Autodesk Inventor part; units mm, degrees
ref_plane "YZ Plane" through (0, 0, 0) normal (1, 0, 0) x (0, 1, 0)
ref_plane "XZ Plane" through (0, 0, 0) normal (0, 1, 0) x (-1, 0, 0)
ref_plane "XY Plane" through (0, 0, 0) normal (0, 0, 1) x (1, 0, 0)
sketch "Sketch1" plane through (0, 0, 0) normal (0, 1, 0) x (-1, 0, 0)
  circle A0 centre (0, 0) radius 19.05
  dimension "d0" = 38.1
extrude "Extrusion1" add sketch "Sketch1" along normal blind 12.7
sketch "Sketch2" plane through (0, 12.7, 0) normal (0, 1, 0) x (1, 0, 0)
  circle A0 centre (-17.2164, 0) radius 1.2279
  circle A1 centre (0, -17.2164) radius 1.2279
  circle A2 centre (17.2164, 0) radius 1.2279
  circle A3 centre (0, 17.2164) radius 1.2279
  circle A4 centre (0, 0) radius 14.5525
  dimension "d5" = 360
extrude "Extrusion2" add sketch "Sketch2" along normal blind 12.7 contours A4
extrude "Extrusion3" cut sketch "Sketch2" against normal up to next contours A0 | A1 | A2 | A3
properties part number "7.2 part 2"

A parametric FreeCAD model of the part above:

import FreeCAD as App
import Part
import Sketcher
Q = App.Units.Quantity

doc = App.newDocument("Part")
body = doc.addObject("PartDesign::Body", "Body")

sketch1 = body.newObject("Sketcher::SketchObject", "Sketch")
sketch1.AttachmentSupport = (doc.getObject("XZ_Plane"), [""])
sketch1.MapMode = "FlatFace"
sketch1.addGeometry(Part.Circle(App.Vector(0, 0, 0), App.Vector(0, 0, 1), 19.05), False)
sketch1.addConstraint([
    Sketcher.Constraint("Coincident", 0, 3, -1, 1),
    Sketcher.Constraint("Diameter", 0, Q("1.5 in")),
])
pad1 = body.newObject("PartDesign::Pad", "Pad")
pad1.Profile = sketch1
pad1.Length = Q("0.5 in")
pad1.Reversed = True

sketch2 = body.newObject("Sketcher::SketchObject", "Sketch001")
sketch2.AttachmentSupport = (doc.getObject("XZ_Plane"), [""])
sketch2.MapMode = "FlatFace"
sketch2.AttachmentOffset = App.Placement(App.Vector(0, 0, -0.5 * 25.4), App.Rotation())
sketch2.addGeometry(Part.Circle(App.Vector(0, 0, 0), App.Vector(0, 0, 1), 14.5525), False)
sketch2.addConstraint([
    Sketcher.Constraint("Coincident", 0, 3, -1, 1),
    Sketcher.Constraint("Diameter", 0, Q("29.105 mm")),
])
pad2 = body.newObject("PartDesign::Pad", "Pad001")
pad2.Profile = sketch2
pad2.Length = Q("0.5 in")
pad2.Reversed = True

sketch3 = body.newObject("Sketcher::SketchObject", "Sketch002")
sketch3.AttachmentSupport = (doc.getObject("XZ_Plane"), [""])
sketch3.MapMode = "FlatFace"
sketch3.AttachmentOffset = App.Placement(App.Vector(0, 0, -0.5 * 25.4), App.Rotation())
sketch3.addGeometry([
    Part.Circle(App.Vector(-17.2164, 0, 0), App.Vector(0, 0, 1), 1.2279),
    Part.Circle(App.Vector(0, 17.2164, 0), App.Vector(0, 0, 1), 1.2279),
    Part.Circle(App.Vector(17.2164, 0, 0), App.Vector(0, 0, 1), 1.2279),
    Part.Circle(App.Vector(0, -17.2164, 0), App.Vector(0, 0, 1), 1.2279),
], False)
sketch3.addConstraint([
    Sketcher.Constraint("Equal", 0, 1),
    Sketcher.Constraint("Equal", 1, 2),
    Sketcher.Constraint("Equal", 2, 3),
    Sketcher.Constraint("Symmetric", 0, 3, 2, 3, -1, 1),
    Sketcher.Constraint("Symmetric", 1, 3, 3, 3, -1, 1),
    Sketcher.Constraint("PointOnObject", 0, 3, -1),
    Sketcher.Constraint("PointOnObject", 1, 3, -2),
    Sketcher.Constraint("Diameter", 0, Q("2.4558 mm")),
    Sketcher.Constraint("DistanceX", 0, 3, -1, 1, Q("0.6778 in")),
    Sketcher.Constraint("DistanceY", -1, 1, 1, 3, Q("0.6778 in")),
])
pocket1 = body.newObject("PartDesign::Pocket", "Pocket")
pocket1.Profile = sketch3
pocket1.Type = "UpToFirst"
pocket1.Reversed = True

doc.recompute()
